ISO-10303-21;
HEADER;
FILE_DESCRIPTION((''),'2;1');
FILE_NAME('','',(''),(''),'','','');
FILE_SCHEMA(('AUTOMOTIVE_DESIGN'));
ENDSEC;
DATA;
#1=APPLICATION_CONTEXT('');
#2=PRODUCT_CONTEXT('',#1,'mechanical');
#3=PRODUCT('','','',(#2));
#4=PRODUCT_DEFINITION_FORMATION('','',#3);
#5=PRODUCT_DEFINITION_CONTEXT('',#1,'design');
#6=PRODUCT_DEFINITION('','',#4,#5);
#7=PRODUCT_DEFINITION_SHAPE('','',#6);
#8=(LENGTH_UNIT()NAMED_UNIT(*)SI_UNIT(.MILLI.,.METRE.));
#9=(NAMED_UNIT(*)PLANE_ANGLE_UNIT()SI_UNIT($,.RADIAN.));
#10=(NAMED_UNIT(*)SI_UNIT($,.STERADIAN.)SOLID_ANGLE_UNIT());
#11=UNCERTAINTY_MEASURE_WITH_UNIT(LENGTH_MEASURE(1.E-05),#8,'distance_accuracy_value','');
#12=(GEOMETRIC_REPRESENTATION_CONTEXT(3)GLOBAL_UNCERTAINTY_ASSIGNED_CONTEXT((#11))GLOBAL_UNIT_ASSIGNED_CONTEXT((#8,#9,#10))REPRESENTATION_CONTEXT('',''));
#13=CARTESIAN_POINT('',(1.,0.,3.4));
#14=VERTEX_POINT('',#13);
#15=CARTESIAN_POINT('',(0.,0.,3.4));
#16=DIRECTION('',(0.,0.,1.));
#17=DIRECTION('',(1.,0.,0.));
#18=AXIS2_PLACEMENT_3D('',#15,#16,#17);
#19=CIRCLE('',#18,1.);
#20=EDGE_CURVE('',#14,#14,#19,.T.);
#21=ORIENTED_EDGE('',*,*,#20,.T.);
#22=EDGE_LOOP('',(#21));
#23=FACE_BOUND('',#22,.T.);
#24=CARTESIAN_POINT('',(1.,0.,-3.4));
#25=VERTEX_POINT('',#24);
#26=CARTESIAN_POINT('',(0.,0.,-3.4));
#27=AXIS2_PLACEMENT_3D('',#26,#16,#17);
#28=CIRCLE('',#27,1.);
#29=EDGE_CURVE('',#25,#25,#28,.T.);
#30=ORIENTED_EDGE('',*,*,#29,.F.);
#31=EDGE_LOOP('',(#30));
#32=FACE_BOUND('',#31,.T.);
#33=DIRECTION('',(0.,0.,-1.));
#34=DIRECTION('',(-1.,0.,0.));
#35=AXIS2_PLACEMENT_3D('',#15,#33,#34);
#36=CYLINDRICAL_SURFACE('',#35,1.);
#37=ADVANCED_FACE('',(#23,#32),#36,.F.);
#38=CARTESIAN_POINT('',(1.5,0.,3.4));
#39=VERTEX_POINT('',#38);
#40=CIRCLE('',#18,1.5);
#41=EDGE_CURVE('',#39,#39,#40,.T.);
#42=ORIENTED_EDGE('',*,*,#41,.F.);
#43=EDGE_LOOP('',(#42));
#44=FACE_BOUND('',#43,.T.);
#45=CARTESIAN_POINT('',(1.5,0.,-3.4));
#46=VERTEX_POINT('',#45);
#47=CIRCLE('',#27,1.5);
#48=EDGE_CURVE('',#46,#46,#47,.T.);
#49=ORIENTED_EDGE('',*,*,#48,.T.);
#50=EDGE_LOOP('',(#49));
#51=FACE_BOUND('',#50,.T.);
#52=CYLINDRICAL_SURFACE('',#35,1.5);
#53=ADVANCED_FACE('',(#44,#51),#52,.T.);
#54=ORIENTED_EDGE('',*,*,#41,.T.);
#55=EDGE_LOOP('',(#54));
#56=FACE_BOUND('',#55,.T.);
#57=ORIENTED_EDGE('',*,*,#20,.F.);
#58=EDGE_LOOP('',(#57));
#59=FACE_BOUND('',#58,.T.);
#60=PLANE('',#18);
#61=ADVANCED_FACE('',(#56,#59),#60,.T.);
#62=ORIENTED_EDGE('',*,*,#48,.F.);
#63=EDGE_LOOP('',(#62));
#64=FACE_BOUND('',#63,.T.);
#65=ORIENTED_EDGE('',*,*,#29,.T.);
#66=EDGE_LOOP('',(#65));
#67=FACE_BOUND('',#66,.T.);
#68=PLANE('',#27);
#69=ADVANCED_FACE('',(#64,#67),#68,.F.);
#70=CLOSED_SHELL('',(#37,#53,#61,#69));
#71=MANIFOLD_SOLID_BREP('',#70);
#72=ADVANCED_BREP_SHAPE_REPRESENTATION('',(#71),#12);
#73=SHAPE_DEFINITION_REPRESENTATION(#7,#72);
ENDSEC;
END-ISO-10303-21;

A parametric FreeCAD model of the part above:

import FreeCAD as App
import Part
import Sketcher

doc = App.newDocument("Part")
params = doc.addObject("Spreadsheet::Sheet", "Params")
for row, (alias, value) in enumerate([
    ("sketch1_diameter", "3 mm"),
    ("sketch1_diameter2", "2 mm"),
    ("pad1_length", "6.8 mm"),
], start=1):
    params.set(f"A{row}", alias)
    params.set(f"B{row}", "=" + value)
    params.setAlias(f"B{row}", alias)

body = doc.addObject("PartDesign::Body", "Body")

# Sketch on XY plane
sketch1 = body.newObject("Sketcher::SketchObject", "Sketch")
sketch1.AttachmentSupport = (doc.getObject("XY_Plane"), [""])
sketch1.MapMode = "FlatFace"
sketch1.addGeometry(Part.Circle(App.Vector(0, 0, 0), App.Vector(0, 0, 1), 1.5), False)
sketch1.addGeometry(Part.Circle(App.Vector(0, 0, 0), App.Vector(0, 0, 1), 1), False)
sketch1.addConstraint(Sketcher.Constraint("Coincident", 0, 3, -1, 1))
sketch1.addConstraint(Sketcher.Constraint("Coincident", 1, 3, -1, 1))
sketch1.addConstraint(Sketcher.Constraint("Diameter", 0, 3.0))
sketch1.addConstraint(Sketcher.Constraint("Diameter", 1, 2.0))
sketch1.setExpression("Constraints[2]", "Params.sketch1_diameter")
sketch1.setExpression("Constraints[3]", "Params.sketch1_diameter2")
pad1 = body.newObject("PartDesign::Pad", "Pad")
pad1.Profile = sketch1
pad1.setExpression("Length", "Params.pad1_length")
pad1.Midplane = True

doc.recompute()
